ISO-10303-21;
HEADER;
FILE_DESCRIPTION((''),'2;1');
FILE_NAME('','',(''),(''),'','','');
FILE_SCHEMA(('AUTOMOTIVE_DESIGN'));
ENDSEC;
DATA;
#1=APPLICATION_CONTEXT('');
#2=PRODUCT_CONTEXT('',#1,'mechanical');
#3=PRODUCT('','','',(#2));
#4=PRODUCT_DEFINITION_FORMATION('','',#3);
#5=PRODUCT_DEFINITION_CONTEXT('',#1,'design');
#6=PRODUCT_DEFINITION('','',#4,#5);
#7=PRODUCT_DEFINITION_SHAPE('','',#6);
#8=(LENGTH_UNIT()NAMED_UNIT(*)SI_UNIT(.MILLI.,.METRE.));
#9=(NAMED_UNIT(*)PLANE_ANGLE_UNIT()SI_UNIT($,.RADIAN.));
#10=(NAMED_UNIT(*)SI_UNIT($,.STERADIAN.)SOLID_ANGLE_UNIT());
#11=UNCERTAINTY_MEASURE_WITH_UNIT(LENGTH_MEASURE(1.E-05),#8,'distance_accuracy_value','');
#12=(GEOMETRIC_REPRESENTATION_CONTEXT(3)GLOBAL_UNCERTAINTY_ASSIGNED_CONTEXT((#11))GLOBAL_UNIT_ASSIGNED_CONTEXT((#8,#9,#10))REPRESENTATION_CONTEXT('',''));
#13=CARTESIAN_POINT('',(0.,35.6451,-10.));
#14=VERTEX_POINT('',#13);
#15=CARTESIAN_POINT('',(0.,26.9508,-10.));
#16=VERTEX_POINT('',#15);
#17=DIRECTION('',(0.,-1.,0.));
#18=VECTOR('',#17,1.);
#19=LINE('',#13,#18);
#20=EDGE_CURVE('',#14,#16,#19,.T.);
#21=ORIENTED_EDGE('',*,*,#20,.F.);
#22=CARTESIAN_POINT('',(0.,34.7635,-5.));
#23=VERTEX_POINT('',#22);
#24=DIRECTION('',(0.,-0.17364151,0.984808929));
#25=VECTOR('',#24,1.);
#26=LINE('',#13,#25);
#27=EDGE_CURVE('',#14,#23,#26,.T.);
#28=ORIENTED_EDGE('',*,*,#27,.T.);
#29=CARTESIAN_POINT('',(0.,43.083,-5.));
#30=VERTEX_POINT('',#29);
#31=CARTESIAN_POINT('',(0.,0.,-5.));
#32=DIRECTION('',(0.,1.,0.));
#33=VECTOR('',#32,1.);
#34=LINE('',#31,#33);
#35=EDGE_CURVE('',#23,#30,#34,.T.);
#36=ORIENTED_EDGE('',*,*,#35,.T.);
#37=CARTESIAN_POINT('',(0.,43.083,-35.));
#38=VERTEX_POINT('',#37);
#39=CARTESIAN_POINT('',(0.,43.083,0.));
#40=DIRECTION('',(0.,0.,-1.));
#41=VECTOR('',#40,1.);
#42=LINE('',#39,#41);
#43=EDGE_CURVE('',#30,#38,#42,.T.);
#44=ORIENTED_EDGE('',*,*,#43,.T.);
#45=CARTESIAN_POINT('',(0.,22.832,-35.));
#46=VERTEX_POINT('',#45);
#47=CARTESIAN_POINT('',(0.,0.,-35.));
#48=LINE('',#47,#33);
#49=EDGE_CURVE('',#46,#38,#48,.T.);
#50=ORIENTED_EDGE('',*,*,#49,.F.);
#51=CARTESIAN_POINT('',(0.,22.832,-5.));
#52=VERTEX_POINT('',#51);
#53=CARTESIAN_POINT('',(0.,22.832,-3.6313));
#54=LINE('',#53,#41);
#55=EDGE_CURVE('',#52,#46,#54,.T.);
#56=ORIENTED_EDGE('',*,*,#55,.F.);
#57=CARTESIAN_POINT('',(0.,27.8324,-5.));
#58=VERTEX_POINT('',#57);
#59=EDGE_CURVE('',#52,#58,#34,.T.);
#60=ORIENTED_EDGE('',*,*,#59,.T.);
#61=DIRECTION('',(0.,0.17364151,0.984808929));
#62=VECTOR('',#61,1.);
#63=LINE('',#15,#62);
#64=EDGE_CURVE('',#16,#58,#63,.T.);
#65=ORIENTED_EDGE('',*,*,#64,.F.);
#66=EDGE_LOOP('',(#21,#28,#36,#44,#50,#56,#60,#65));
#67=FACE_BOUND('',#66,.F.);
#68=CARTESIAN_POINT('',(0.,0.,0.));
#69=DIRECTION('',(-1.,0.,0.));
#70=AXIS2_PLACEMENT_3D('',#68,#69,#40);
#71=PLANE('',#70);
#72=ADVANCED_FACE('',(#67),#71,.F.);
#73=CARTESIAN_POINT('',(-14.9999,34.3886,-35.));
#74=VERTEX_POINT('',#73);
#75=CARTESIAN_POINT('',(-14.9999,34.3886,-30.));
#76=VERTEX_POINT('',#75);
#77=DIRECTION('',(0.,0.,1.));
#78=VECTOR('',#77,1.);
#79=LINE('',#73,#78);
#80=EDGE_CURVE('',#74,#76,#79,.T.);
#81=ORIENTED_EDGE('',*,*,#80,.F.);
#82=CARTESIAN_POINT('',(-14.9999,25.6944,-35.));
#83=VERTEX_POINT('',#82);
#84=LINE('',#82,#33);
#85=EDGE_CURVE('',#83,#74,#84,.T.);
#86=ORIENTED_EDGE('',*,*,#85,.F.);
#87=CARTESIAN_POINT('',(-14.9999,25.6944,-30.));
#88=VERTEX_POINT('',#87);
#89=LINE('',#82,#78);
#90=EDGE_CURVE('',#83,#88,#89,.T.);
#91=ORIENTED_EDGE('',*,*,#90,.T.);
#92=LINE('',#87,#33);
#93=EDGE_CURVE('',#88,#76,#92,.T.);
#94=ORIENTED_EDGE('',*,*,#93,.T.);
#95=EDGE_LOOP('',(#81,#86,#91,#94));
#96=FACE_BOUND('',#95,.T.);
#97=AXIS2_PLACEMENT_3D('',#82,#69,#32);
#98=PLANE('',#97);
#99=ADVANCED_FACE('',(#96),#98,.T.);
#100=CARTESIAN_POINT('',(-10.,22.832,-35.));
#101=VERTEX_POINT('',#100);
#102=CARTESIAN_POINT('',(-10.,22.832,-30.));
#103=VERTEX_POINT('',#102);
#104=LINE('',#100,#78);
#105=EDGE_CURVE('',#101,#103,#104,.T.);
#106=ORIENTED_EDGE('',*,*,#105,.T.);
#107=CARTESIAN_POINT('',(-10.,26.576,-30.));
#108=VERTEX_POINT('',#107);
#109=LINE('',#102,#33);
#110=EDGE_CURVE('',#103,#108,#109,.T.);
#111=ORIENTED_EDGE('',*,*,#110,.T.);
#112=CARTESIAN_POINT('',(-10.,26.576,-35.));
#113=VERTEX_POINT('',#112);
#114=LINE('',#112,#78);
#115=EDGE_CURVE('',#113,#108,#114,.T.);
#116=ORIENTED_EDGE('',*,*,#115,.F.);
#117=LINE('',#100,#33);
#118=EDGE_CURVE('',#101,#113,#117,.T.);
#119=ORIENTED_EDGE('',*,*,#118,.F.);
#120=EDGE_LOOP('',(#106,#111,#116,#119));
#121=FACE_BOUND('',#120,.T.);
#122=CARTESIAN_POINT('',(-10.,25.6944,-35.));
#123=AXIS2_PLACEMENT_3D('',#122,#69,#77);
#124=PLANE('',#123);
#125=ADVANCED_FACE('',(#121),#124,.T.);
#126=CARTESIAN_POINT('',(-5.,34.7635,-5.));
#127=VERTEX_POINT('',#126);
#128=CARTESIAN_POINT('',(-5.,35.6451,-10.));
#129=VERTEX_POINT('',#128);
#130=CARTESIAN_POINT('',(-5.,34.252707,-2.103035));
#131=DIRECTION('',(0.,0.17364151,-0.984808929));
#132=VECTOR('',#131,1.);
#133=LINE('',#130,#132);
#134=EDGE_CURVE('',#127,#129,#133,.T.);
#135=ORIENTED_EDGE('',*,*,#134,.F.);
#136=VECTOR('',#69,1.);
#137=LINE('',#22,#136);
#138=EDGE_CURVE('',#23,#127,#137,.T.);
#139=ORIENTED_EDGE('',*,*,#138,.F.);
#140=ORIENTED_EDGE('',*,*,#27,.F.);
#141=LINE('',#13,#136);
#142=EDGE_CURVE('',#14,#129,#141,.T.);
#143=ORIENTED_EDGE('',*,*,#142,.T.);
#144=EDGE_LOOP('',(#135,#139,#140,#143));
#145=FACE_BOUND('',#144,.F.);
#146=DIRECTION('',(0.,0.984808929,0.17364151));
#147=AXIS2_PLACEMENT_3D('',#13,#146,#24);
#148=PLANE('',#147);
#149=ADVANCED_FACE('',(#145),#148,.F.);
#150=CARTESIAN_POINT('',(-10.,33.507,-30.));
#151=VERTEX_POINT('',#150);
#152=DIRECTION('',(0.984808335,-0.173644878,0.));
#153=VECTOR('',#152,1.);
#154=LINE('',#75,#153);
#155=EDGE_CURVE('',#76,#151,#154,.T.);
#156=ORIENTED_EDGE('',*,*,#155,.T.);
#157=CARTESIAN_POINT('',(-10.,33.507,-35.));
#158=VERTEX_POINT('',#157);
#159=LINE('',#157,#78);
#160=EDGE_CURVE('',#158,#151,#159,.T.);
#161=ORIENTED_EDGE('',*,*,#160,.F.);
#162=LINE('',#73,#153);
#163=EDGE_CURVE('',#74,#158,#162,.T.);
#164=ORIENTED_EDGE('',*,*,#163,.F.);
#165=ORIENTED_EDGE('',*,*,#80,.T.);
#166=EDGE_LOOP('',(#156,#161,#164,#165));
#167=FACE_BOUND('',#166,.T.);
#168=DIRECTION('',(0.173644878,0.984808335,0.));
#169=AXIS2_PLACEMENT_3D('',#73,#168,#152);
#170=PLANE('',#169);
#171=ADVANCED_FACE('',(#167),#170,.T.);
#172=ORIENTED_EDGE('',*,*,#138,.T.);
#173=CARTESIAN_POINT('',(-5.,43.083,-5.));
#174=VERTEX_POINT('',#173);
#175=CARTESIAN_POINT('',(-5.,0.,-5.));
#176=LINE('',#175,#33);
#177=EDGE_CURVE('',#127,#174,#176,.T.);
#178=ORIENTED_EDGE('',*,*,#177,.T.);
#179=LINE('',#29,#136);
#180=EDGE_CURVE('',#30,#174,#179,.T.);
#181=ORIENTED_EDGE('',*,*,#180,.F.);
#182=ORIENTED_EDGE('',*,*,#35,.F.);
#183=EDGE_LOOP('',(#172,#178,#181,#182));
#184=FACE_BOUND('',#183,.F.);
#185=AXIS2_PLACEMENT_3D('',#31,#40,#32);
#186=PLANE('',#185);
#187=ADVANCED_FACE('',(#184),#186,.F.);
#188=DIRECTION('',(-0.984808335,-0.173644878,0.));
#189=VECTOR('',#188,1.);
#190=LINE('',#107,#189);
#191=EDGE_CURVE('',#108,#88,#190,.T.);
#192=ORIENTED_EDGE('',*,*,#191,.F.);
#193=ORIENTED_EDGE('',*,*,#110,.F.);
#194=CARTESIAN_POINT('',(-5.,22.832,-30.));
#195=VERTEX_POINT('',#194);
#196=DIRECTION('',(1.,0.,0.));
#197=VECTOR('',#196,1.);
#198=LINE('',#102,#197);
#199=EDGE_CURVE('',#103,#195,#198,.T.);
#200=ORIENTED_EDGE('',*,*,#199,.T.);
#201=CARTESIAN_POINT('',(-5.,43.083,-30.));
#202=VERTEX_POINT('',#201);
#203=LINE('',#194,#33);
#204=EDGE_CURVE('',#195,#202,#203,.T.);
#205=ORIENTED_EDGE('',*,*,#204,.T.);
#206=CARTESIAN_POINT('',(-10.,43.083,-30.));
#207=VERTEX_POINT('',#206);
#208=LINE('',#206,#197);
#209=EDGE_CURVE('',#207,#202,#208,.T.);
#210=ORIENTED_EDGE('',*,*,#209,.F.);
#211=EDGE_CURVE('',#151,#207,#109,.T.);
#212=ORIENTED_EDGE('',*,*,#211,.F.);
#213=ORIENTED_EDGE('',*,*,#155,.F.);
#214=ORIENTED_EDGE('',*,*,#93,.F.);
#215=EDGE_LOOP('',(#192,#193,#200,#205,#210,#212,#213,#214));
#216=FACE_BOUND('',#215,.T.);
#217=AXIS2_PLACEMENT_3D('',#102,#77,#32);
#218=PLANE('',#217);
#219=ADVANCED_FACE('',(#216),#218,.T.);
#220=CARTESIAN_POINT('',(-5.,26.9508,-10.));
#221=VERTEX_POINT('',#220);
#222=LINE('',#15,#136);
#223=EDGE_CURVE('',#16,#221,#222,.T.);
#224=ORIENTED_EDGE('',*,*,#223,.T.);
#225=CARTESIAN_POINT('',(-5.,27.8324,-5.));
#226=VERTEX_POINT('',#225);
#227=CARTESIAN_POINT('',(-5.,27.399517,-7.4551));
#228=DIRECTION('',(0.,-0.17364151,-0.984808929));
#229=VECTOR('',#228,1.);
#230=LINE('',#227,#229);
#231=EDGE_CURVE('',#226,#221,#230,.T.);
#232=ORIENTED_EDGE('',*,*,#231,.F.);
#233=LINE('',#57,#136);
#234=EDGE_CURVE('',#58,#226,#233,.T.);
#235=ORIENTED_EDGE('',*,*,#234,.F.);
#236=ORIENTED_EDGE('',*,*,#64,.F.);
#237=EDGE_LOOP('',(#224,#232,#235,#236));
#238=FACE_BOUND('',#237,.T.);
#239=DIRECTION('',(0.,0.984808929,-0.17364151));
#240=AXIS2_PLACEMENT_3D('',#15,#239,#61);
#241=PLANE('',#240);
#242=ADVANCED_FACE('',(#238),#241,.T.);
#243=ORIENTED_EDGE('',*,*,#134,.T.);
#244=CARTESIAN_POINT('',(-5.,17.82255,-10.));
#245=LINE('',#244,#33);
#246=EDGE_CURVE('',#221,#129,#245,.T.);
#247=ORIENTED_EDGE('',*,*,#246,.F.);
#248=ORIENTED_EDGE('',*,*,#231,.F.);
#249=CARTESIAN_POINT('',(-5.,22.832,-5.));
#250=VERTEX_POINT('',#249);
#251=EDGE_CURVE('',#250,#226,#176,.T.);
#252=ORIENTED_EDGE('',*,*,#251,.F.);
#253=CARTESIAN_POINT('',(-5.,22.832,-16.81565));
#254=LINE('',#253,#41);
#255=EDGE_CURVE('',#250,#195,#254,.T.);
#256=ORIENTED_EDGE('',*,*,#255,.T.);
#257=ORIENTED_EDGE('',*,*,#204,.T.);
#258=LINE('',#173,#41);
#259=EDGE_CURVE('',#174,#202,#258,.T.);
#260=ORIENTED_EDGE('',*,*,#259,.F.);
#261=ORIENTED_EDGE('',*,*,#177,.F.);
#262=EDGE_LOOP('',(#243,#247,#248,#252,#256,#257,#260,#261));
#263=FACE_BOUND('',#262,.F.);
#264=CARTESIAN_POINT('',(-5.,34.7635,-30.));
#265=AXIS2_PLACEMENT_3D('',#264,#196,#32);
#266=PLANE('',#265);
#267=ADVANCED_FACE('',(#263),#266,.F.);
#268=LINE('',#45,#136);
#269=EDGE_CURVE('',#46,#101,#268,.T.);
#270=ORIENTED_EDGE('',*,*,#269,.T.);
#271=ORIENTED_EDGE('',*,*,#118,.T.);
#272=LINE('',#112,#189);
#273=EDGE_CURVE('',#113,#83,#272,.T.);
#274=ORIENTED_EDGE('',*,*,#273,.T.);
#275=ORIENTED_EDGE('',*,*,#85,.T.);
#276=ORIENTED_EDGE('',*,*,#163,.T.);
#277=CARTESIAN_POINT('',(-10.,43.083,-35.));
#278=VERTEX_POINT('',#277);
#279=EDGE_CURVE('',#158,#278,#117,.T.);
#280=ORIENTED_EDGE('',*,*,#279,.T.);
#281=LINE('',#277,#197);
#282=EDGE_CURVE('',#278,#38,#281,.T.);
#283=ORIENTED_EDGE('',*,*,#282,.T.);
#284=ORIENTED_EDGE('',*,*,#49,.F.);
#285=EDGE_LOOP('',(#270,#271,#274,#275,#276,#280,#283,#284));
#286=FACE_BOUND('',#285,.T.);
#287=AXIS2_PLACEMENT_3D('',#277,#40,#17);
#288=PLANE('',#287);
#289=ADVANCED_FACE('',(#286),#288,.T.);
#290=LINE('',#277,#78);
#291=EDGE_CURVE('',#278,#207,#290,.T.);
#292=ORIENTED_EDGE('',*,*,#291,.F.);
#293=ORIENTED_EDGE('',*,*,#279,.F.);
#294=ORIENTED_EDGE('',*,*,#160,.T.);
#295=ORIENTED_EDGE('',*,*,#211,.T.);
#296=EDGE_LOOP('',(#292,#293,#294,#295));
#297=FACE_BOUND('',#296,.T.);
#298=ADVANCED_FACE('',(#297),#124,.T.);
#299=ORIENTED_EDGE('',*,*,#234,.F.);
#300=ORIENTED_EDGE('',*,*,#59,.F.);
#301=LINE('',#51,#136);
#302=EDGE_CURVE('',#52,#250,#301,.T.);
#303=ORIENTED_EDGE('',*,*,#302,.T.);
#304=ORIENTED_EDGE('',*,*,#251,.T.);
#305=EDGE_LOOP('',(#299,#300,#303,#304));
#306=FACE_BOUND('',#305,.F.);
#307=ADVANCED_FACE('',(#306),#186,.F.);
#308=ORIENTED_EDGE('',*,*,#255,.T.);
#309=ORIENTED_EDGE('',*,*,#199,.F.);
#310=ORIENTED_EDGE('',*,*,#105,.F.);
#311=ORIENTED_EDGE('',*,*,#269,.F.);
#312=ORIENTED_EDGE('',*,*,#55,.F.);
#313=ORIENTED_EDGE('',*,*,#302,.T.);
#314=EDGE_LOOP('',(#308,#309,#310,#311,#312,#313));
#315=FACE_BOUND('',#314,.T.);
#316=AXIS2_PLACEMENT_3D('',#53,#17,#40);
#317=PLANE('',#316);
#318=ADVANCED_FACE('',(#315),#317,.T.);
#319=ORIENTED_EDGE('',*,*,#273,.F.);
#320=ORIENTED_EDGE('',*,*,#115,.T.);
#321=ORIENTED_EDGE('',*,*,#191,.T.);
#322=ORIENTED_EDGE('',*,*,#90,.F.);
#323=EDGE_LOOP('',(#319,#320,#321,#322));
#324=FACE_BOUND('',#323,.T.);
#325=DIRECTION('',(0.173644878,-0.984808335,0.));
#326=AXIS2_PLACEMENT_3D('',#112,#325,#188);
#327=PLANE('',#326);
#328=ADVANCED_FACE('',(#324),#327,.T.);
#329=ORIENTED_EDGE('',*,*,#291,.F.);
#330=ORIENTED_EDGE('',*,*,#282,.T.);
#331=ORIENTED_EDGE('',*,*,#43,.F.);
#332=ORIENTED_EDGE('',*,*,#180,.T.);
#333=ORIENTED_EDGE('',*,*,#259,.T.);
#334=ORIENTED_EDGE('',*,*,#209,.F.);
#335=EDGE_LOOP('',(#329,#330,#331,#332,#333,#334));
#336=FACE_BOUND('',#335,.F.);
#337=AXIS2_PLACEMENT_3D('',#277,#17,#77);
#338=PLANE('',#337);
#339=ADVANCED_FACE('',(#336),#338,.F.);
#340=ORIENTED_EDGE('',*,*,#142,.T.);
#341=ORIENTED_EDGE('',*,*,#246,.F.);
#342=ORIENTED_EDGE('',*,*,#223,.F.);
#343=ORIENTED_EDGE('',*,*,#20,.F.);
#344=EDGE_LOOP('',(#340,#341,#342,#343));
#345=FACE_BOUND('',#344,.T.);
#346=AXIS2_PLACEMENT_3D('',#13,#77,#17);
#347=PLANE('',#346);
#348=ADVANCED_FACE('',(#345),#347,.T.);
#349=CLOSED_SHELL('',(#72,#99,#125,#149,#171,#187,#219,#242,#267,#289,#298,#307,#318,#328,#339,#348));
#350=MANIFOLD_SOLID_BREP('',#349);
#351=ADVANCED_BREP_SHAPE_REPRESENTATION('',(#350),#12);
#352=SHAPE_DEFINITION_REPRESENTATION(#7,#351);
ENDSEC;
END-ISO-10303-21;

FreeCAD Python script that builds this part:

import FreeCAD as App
import Part
import Sketcher
Q = App.Units.Quantity


def faces_at(feature, points):
    """Names of the faces that lie closest to the given points."""
    faces = feature.Shape.Faces
    near = lambda p: min(range(len(faces)), key=lambda i: faces[i].distToShape(Part.Vertex(*p))[0])
    return sorted({f"Face{near(p) + 1}" for p in points})


def add_polygon(sketch, points):
    """Adds a closed chain of lines whose ends are joined by coincident constraints."""
    first, n = sketch.GeometryCount, len(points)
    for a, b in zip(points, points[1:] + points[:1]):
        sketch.addGeometry(Part.LineSegment(App.Vector(*a, 0), App.Vector(*b, 0)), False)
    for i in range(n):
        sketch.addConstraint(Sketcher.Constraint("Coincident", first + i, 2, first + (i + 1) % n, 1))

doc = App.newDocument("Part")
body = doc.addObject("PartDesign::Body", "Body")

# Sketch on XZ plane
sketch1 = body.newObject("Sketcher::SketchObject", "Sketch")
sketch1.AttachmentSupport = (doc.getObject("XZ_Plane"), [""])
sketch1.MapMode = "FlatFace"
add_polygon(sketch1, [(-48, 0), (0, 0), (0, -35), (-37, -35), (-37, -55), (-48, -55)])  # lines 0-5
sketch1.addConstraint(Sketcher.Constraint("Horizontal", 0))
sketch1.addConstraint(Sketcher.Constraint("Vertical", 1))
sketch1.addConstraint(Sketcher.Constraint("Horizontal", 2))
sketch1.addConstraint(Sketcher.Constraint("Vertical", 3))
sketch1.addConstraint(Sketcher.Constraint("Horizontal", 4))
sketch1.addConstraint(Sketcher.Constraint("Vertical", 5))
sketch1.addConstraint(Sketcher.Constraint("Coincident", 0, 2, -1, 1))
sketch1.addConstraint(Sketcher.Constraint("DistanceX", 2, 2, 2, 1, 37.0))
sketch1.addConstraint(Sketcher.Constraint("DistanceX", 4, 2, 4, 1, 11.0))
sketch1.addConstraint(Sketcher.Constraint("DistanceY", 1, 2, 1, 1, 35.0))
sketch1.addConstraint(Sketcher.Constraint("DistanceY", 3, 2, 3, 1, 20.0))
pad1 = body.newObject("PartDesign::Pad", "Pad")
pad1.Profile = sketch1
pad1.Length = 50
pad1.Reversed = True
doc.recompute()

thickness = body.newObject("PartDesign::Thickness", "Thickness")
thickness.Base = (pad1, faces_at(pad1, [(-48, 16.667, -36.667), (-19.667, 0, -23.333), (-19.667, 50, -23.333)]))
thickness.Value = 5
thickness.Reversed = True
thickness.Join = "Intersection"

# Sketch on YZ plane
sketch2 = body.newObject("Sketcher::SketchObject", "Sketch001")
sketch2.AttachmentSupport = (doc.getObject("YZ_Plane"), [""])
sketch2.MapMode = "FlatFace"
add_polygon(sketch2, [(17, -5), (0, -5), (0, -19), (17, -19)])  # lines 0-3
sketch2.addConstraint(Sketcher.Constraint("Horizontal", 0))
sketch2.addConstraint(Sketcher.Constraint("Vertical", 1))
sketch2.addConstraint(Sketcher.Constraint("Horizontal", 2))
sketch2.addConstraint(Sketcher.Constraint("Vertical", 3))
sketch2.addConstraint(Sketcher.Constraint("PointOnObject", 0, 2, -2))
sketch2.addConstraint(Sketcher.Constraint("DistanceX", 0, 2, 0, 1, 17.0))
sketch2.addConstraint(Sketcher.Constraint("DistanceY", 1, 2, 1, 1, 14.0))
sketch2.addConstraint(Sketcher.Constraint("DistanceY", 0, 2, -1, 1, 5.0))
pocket1 = body.newObject("PartDesign::Pocket", "Pocket")
pocket1.Profile = sketch2
pocket1.Length = 10

# Sketch on YZ plane
sketch3 = body.newObject("Sketcher::SketchObject", "Sketch002")
sketch3.AttachmentSupport = (doc.getObject("YZ_Plane"), [""])
sketch3.MapMode = "FlatFace"
sketch3.AttachmentOffset = App.Placement(App.Vector(0, 0, -48), App.Rotation())
add_polygon(sketch3, [(50, -55), (0, -55), (0, -50), (50, -50)])  # lines 0-3
sketch3.addConstraint(Sketcher.Constraint("Horizontal", 0))
sketch3.addConstraint(Sketcher.Constraint("Vertical", 1))
sketch3.addConstraint(Sketcher.Constraint("Horizontal", 2))
sketch3.addConstraint(Sketcher.Constraint("Vertical", 3))
sketch3.addConstraint(Sketcher.Constraint("PointOnObject", 0, 2, -2))
sketch3.addConstraint(Sketcher.Constraint("DistanceX", 0, 2, 0, 1, 50.0))
sketch3.addConstraint(Sketcher.Constraint("DistanceY", 1, 1, 1, 2, 5.0))
sketch3.addConstraint(Sketcher.Constraint("DistanceY", 0, 2, -1, 1, 55.0))
pad2 = body.newObject("PartDesign::Pad", "Pad001")
pad2.Profile = sketch3
pad2.Length = 15
pad2.Reversed = True

# Sketch on YZ plane
sketch4 = body.newObject("Sketcher::SketchObject", "Sketch003")
sketch4.AttachmentSupport = (doc.getObject("YZ_Plane"), [""])
sketch4.MapMode = "FlatFace"
sketch4.AttachmentOffset = App.Placement(App.Vector(0, 0, -48), App.Rotation())
add_polygon(sketch4, [(50, -5), (0, -5), (0, 0), (50, 0)])  # lines 0-3
sketch4.addConstraint(Sketcher.Constraint("Horizontal", 0))
sketch4.addConstraint(Sketcher.Constraint("Vertical", 1))
sketch4.addConstraint(Sketcher.Constraint("Horizontal", 2))
sketch4.addConstraint(Sketcher.Constraint("Vertical", 3))
sketch4.addConstraint(Sketcher.Constraint("Coincident", 1, 2, -1, 1))
sketch4.addConstraint(Sketcher.Constraint("DistanceX", 0, 2, 0, 1, 50.0))
sketch4.addConstraint(Sketcher.Constraint("DistanceY", 1, 1, 1, 2, 5.0))
pad3 = body.newObject("PartDesign::Pad", "Pad002")
pad3.Profile = sketch4
pad3.Length = 15
pad3.Reversed = True

# Sketch on XY plane
sketch5 = body.newObject("Sketcher::SketchObject", "Sketch004")
sketch5.AttachmentSupport = (doc.getObject("XY_Plane"), [""])
sketch5.MapMode = "FlatFace"
sketch5.AttachmentOffset = App.Placement(App.Vector(0, 0, -5), App.Rotation())
sketch5.addGeometry(Part.Circle(App.Vector(-11.5, 8.5, 0), App.Vector(0, 0, 1), 2.0828), False)
sketch5.addConstraint(Sketcher.Constraint("Diameter", 0, 4.1656))
sketch5.addConstraint(Sketcher.Constraint("DistanceX", 0, 3, -1, 1, 11.5))
sketch5.addConstraint(Sketcher.Constraint("DistanceY", -1, 1, 0, 3, 8.5))
pocket2 = body.newObject("PartDesign::Pocket", "Pocket001")
pocket2.Profile = sketch5
pocket2.Length = 15
pocket2.Reversed = True

# Sketch on XY plane
sketch6 = body.newObject("Sketcher::SketchObject", "Sketch005")
sketch6.AttachmentSupport = (doc.getObject("XY_Plane"), [""])
sketch6.MapMode = "FlatFace"
sketch6.AttachmentOffset = App.Placement(App.Vector(0, 0, -5), App.Rotation())
sketch6.addGeometry(Part.Circle(App.Vector(-28.505, 35.46, 0), App.Vector(0, 0, 1), 2.0828), False)
sketch6.addConstraint(Sketcher.Constraint("Diameter", 0, 4.1656))
sketch6.addConstraint(Sketcher.Constraint("DistanceY", -1, 1, 0, 3, 35.46))
sketch6.addConstraint(Sketcher.Constraint("DistanceX", 0, 3, -1, 1, 28.505))
pocket3 = body.newObject("PartDesign::Pocket", "Pocket002")
pocket3.Profile = sketch6
pocket3.Length = 15
pocket3.Reversed = True

# Sketch on XY plane
sketch7 = body.newObject("Sketcher::SketchObject", "Sketch006")
sketch7.AttachmentSupport = (doc.getObject("XY_Plane"), [""])
sketch7.MapMode = "FlatFace"
sketch7.AttachmentOffset = App.Placement(App.Vector(0, 0, -5), App.Rotation())
sketch7.addGeometry(Part.Circle(App.Vector(-58.5, 36, 0), App.Vector(0, 0, 1), 2.0828), False)
sketch7.addConstraint(Sketcher.Constraint("Diameter", 0, 4.1656))
sketch7.addConstraint(Sketcher.Constraint("DistanceY", -1, 1, 0, 3, 36.0))
sketch7.addConstraint(Sketcher.Constraint("DistanceX", 0, 3, -1, 1, 58.5))
pocket4 = body.newObject("PartDesign::Pocket", "Pocket003")
pocket4.Profile = sketch7
pocket4.Length = 15
pocket4.Reversed = True

# Sketch on XY plane
sketch8 = body.newObject("Sketcher::SketchObject", "Sketch007")
sketch8.AttachmentSupport = (doc.getObject("XY_Plane"), [""])
sketch8.MapMode = "FlatFace"
sketch8.AttachmentOffset = App.Placement(App.Vector(0, 0, -35), App.Rotation())
sketch8.addGeometry(Part.Circle(App.Vector(-11.5, 8.5, 0), App.Vector(0, 0, 1), 2.0828), False)
sketch8.addConstraint(Sketcher.Constraint("Diameter", 0, 4.1656))
sketch8.addConstraint(Sketcher.Constraint("DistanceX", 0, 3, -1, 1, 11.5))
sketch8.addConstraint(Sketcher.Constraint("DistanceY", -1, 1, 0, 3, 8.5))
pocket5 = body.newObject("PartDesign::Pocket", "Pocket004")
pocket5.Profile = sketch8
pocket5.Length = 15
pocket5.Reversed = True

# Sketch on XY plane
sketch9 = body.newObject("Sketcher::SketchObject", "Sketch008")
sketch9.AttachmentSupport = (doc.getObject("XY_Plane"), [""])
sketch9.MapMode = "FlatFace"
sketch9.AttachmentOffset = App.Placement(App.Vector(0, 0, -55), App.Rotation())
sketch9.addGeometry(Part.Circle(App.Vector(-28.505, 35.46, 0), App.Vector(0, 0, 1), 2.0828), False)
sketch9.addConstraint(Sketcher.Constraint("Diameter", 0, 4.1656))
sketch9.addConstraint(Sketcher.Constraint("DistanceY", -1, 1, 0, 3, 35.46))
sketch9.addConstraint(Sketcher.Constraint("DistanceX", 0, 3, -1, 1, 28.505))
pocket6 = body.newObject("PartDesign::Pocket", "Pocket005")
pocket6.Profile = sketch9
pocket6.Length = 15
pocket6.Reversed = True

# Sketch on XY plane
sketch10 = body.newObject("Sketcher::SketchObject", "Sketch009")
sketch10.AttachmentSupport = (doc.getObject("XY_Plane"), [""])
sketch10.MapMode = "FlatFace"
sketch10.AttachmentOffset = App.Placement(App.Vector(0, 0, -55), App.Rotation())
sketch10.addGeometry(Part.Circle(App.Vector(-58.5, 36, 0), App.Vector(0, 0, 1), 2.0828), False)
sketch10.addConstraint(Sketcher.Constraint("DistanceY", -1, 1, 0, 3, 36.0))
sketch10.addConstraint(Sketcher.Constraint("Diameter", 0, 4.1656))
sketch10.addConstraint(Sketcher.Constraint("DistanceX", 0, 3, -1, 1, 58.5))
pocket7 = body.newObject("PartDesign::Pocket", "Pocket006")
pocket7.Profile = sketch10
pocket7.Length = 15
pocket7.Reversed = True

# Sketch on YZ plane
sketch11 = body.newObject("Sketcher::SketchObject", "Sketch010")
sketch11.AttachmentSupport = (doc.getObject("YZ_Plane"), [""])
sketch11.MapMode = "FlatFace"
sketch11.AttachmentOffset = App.Placement(App.Vector(0, 0, -42), App.Rotation())
add_polygon(sketch11, [(0, -35), (0, -30), (50, -30), (50, -35)])  # lines 0-3
sketch11.addConstraint(Sketcher.Constraint("Vertical", 0))
sketch11.addConstraint(Sketcher.Constraint("Horizontal", 1))
sketch11.addConstraint(Sketcher.Constraint("Vertical", 2))
sketch11.addConstraint(Sketcher.Constraint("Horizontal", 3))
sketch11.addConstraint(Sketcher.Constraint("PointOnObject", 0, 2, -2))
sketch11.addConstraint(Sketcher.Constraint("DistanceX", 1, 1, 1, 2, 50.0))
sketch11.addConstraint(Sketcher.Constraint("DistanceY", 0, 1, 0, 2, 5.0))
sketch11.addConstraint(Sketcher.Constraint("DistanceY", 0, 2, -1, 1, 30.0))
pad4 = body.newObject("PartDesign::Pad", "Pad003")
pad4.Profile = sketch11
pad4.Length = 21
pad4.Reversed = True

# Sketch on XY plane
sketch12 = body.newObject("Sketcher::SketchObject", "Sketch011")
sketch12.AttachmentSupport = (doc.getObject("XY_Plane"), [""])
sketch12.MapMode = "FlatFace"
sketch12.AttachmentOffset = App.Placement(App.Vector(0, 0, -30), App.Rotation())
sketch12.addGeometry(Part.Circle(App.Vector(-28.505, 35.46, 0), App.Vector(0, 0, 1), 2.0828), False)
sketch12.addConstraint(Sketcher.Constraint("Diameter", 0, 4.1656))
sketch12.addConstraint(Sketcher.Constraint("DistanceY", -1, 1, 0, 3, 35.46))
sketch12.addConstraint(Sketcher.Constraint("DistanceX", 0, 3, -1, 1, 28.505))
pocket8 = body.newObject("PartDesign::Pocket", "Pocket007")
pocket8.Profile = sketch12
pocket8.Length = 10

# Sketch on XY plane
sketch13 = body.newObject("Sketcher::SketchObject", "Sketch012")
sketch13.AttachmentSupport = (doc.getObject("XY_Plane"), [""])
sketch13.MapMode = "FlatFace"
sketch13.AttachmentOffset = App.Placement(App.Vector(0, 0, -35), App.Rotation())
sketch13.addGeometry(Part.Circle(App.Vector(-58.5, 36, 0), App.Vector(0, 0, 1), 2.0828), False)
sketch13.addConstraint(Sketcher.Constraint("DistanceY", -1, 1, 0, 3, 36.0))
sketch13.addConstraint(Sketcher.Constraint("Diameter", 0, 4.1656))
sketch13.addConstraint(Sketcher.Constraint("DistanceX", 0, 3, -1, 1, 58.5))
pocket9 = body.newObject("PartDesign::Pocket", "Pocket008")
pocket9.Profile = sketch13
pocket9.Length = 10
pocket9.Reversed = True

# Sketch on YZ plane
sketch14 = body.newObject("Sketcher::SketchObject", "Sketch013")
sketch14.AttachmentSupport = (doc.getObject("YZ_Plane"), [""])
sketch14.MapMode = "FlatFace"
sketch14.AttachmentOffset = App.Placement(App.Vector(0, 0, -63), App.Rotation())
add_polygon(sketch14, [(0, -5), (0, 0), (50, 0), (50, -5)])  # lines 0-3
sketch14.addConstraint(Sketcher.Constraint("Vertical", 0))
sketch14.addConstraint(Sketcher.Constraint("Horizontal", 1))
sketch14.addConstraint(Sketcher.Constraint("Vertical", 2))
sketch14.addConstraint(Sketcher.Constraint("Horizontal", 3))
sketch14.addConstraint(Sketcher.Constraint("Coincident", 0, 2, -1, 1))
sketch14.addConstraint(Sketcher.Constraint("DistanceX", 1, 1, 1, 2, 50.0))
sketch14.addConstraint(Sketcher.Constraint("DistanceY", 0, 1, 0, 2, 5.0))
pad5 = body.newObject("PartDesign::Pad", "Pad004")
pad5.Profile = sketch14
pad5.Length = 2.583
pad5.Reversed = True

# Sketch on YZ plane
sketch15 = body.newObject("Sketcher::SketchObject", "Sketch014")
sketch15.AttachmentSupport = (doc.getObject("YZ_Plane"), [""])
sketch15.MapMode = "FlatFace"
sketch15.AttachmentOffset = App.Placement(App.Vector(0, 0, -63), App.Rotation())
add_polygon(sketch15, [(50, -30), (50, -35), (0, -35), (0, -30)])  # lines 0-3
sketch15.addConstraint(Sketcher.Constraint("Vertical", 0))
sketch15.addConstraint(Sketcher.Constraint("Horizontal", 1))
sketch15.addConstraint(Sketcher.Constraint("Vertical", 2))
sketch15.addConstraint(Sketcher.Constraint("Horizontal", 3))
sketch15.addConstraint(Sketcher.Constraint("PointOnObject", 1, 2, -2))
sketch15.addConstraint(Sketcher.Constraint("DistanceX", 1, 2, 1, 1, 50.0))
sketch15.addConstraint(Sketcher.Constraint("DistanceY", 0, 2, 0, 1, 5.0))
sketch15.addConstraint(Sketcher.Constraint("DistanceY", 0, 2, -1, 1, 35.0))
pad6 = body.newObject("PartDesign::Pad", "Pad005")
pad6.Profile = sketch15
pad6.Length = 2.583
pad6.Reversed = True

# Sketch on YZ plane
sketch16 = body.newObject("Sketcher::SketchObject", "Sketch015")
sketch16.AttachmentSupport = (doc.getObject("YZ_Plane"), [""])
sketch16.MapMode = "FlatFace"
sketch16.AttachmentOffset = App.Placement(App.Vector(0, 0, -63), App.Rotation())
add_polygon(sketch16, [(50, -55), (0, -55), (0, -50), (50, -50)])  # lines 0-3
sketch16.addConstraint(Sketcher.Constraint("Horizontal", 0))
sketch16.addConstraint(Sketcher.Constraint("Vertical", 1))
sketch16.addConstraint(Sketcher.Constraint("Horizontal", 2))
sketch16.addConstraint(Sketcher.Constraint("Vertical", 3))
sketch16.addConstraint(Sketcher.Constraint("PointOnObject", 0, 2, -2))
sketch16.addConstraint(Sketcher.Constraint("DistanceX", 0, 2, 0, 1, 50.0))
sketch16.addConstraint(Sketcher.Constraint("DistanceY", 1, 1, 1, 2, 5.0))
sketch16.addConstraint(Sketcher.Constraint("DistanceY", 0, 2, -1, 1, 55.0))
pad7 = body.newObject("PartDesign::Pad", "Pad006")
pad7.Profile = sketch16
pad7.Length = 2.583
pad7.Reversed = True

# Sketch on XY plane
sketch17 = body.newObject("Sketcher::SketchObject", "Sketch016")
sketch17.AttachmentSupport = (doc.getObject("XY_Plane"), [""])
sketch17.MapMode = "FlatFace"
add_polygon(sketch17, [(0, 43.083), (0, 50), (-65.583, 50), (-65.583, 43.083)])  # lines 0-3
sketch17.addConstraint(Sketcher.Constraint("Vertical", 0))
sketch17.addConstraint(Sketcher.Constraint("Horizontal", 1))
sketch17.addConstraint(Sketcher.Constraint("Vertical", 2))
sketch17.addConstraint(Sketcher.Constraint("Horizontal", 3))
sketch17.addConstraint(Sketcher.Constraint("PointOnObject", 0, 2, -2))
sketch17.addConstraint(Sketcher.Constraint("DistanceY", 0, 1, 0, 2, 6.917))
sketch17.addConstraint(Sketcher.Constraint("DistanceY", -1, 1, 0, 2, 50.0))
sketch17.addConstraint(Sketcher.Constraint("DistanceX", 1, 2, 1, 1, 65.583))
pocket10 = body.newObject("PartDesign::Pocket", "Pocket009")
pocket10.Profile = sketch17
pocket10.Length = 100

# Sketch on XY plane
sketch18 = body.newObject("Sketcher::SketchObject", "Sketch017")
sketch18.AttachmentSupport = (doc.getObject("XY_Plane"), [""])
sketch18.MapMode = "FlatFace"
sketch18.AttachmentOffset = App.Placement(App.Vector(0, 0, -35), App.Rotation())
add_polygon(sketch18, [(-25.0052, 5), (-26.0052, 0), (-31.0052, 0), (-32.0052, 5)])  # lines 0-3
sketch18.addConstraint(Sketcher.Constraint("Horizontal", 1))
sketch18.addConstraint(Sketcher.Constraint("Horizontal", 3))
sketch18.addConstraint(Sketcher.Constraint("PointOnObject", 0, 2, -1))
sketch18.addConstraint(Sketcher.Constraint("Equal", 0, 2))
sketch18.addConstraint(Sketcher.Constraint("DistanceX", 1, 2, 1, 1, 5.0))
sketch18.addConstraint(Sketcher.Constraint("DistanceY", -1, 1, 2, 2, 5.0))
sketch18.addConstraint(Sketcher.Constraint("DistanceX", 2, 2, 1, 2, 1.0))
sketch18.addConstraint(Sketcher.Constraint("DistanceX", 0, 2, -1, 1, 26.0052))
pocket11 = body.newObject("PartDesign::Pocket", "Pocket010")
pocket11.Profile = sketch18
pocket11.Length = 100
pocket11.Reversed = True

# Sketch on YZ plane
sketch19 = body.newObject("Sketcher::SketchObject", "Sketch018")
sketch19.AttachmentSupport = (doc.getObject("YZ_Plane"), [""])
sketch19.MapMode = "FlatFace"
add_polygon(sketch19, [(43.083, 0), (0, 0), (0, -5), (43.083, -5)])  # lines 0-3
sketch19.addConstraint(Sketcher.Constraint("Horizontal", 0))
sketch19.addConstraint(Sketcher.Constraint("Vertical", 1))
sketch19.addConstraint(Sketcher.Constraint("Horizontal", 2))
sketch19.addConstraint(Sketcher.Constraint("Vertical", 3))
sketch19.addConstraint(Sketcher.Constraint("Coincident", 0, 2, -1, 1))
sketch19.addConstraint(Sketcher.Constraint("DistanceY", 1, 2, 1, 1, 5.0))
sketch19.addConstraint(Sketcher.Constraint("DistanceX", 0, 2, 0, 1, 43.083))
pocket12 = body.newObject("PartDesign::Pocket", "Pocket011")
pocket12.Profile = sketch19
pocket12.Length = 100

# Sketch on YZ plane
sketch20 = body.newObject("Sketcher::SketchObject", "Sketch019")
sketch20.AttachmentSupport = (doc.getObject("YZ_Plane"), [""])
sketch20.MapMode = "FlatFace"
add_polygon(sketch20, [(26.9508, -10), (35.6451, -10), (34.7635, -5), (27.8324, -5)])  # lines 0-3
sketch20.addConstraint(Sketcher.Constraint("Horizontal", 0))
sketch20.addConstraint(Sketcher.Constraint("Horizontal", 2))
sketch20.addConstraint(Sketcher.Constraint("Equal", 1, 3))
sketch20.addConstraint(Sketcher.Constraint("DistanceY", 1, 2, -1, 1, 5.0))
sketch20.addConstraint(Sketcher.Constraint("DistanceY", 0, 2, 1, 2, 5.0))
sketch20.addConstraint(Sketcher.Constraint("Angle", 1, Q("99.9996 deg")))
sketch20.addConstraint(Sketcher.Constraint("DistanceX", 0, 1, 0, 2, 8.6943))
sketch20.addConstraint(Sketcher.Constraint("DistanceX", -1, 1, 0, 2, 35.645))
pocket13 = body.newObject("PartDesign::Pocket", "Pocket012")
pocket13.Profile = sketch20
pocket13.Length = 100

# Sketch on YZ plane
sketch21 = body.newObject("Sketcher::SketchObject", "Sketch020")
sketch21.AttachmentSupport = (doc.getObject("YZ_Plane"), [""])
sketch21.MapMode = "FlatFace"
sketch21.AttachmentOffset = App.Placement(App.Vector(0, 0, -37), App.Rotation())
add_polygon(sketch21, [(8.3057, -40), (17, -40), (16.1184, -35), (9.1873, -35)])  # lines 0-3
sketch21.addConstraint(Sketcher.Constraint("Horizontal", 0))
sketch21.addConstraint(Sketcher.Constraint("Horizontal", 2))
sketch21.addConstraint(Sketcher.Constraint("Equal", 1, 3))
sketch21.addConstraint(Sketcher.Constraint("DistanceY", 0, 2, 1, 2, 5.0))
sketch21.addConstraint(Sketcher.Constraint("Angle", 1, Q("99.9996 deg")))
sketch21.addConstraint(Sketcher.Constraint("DistanceX", 0, 1, 0, 2, 8.6943))
sketch21.addConstraint(Sketcher.Constraint("DistanceX", -1, 1, 0, 2, 17.0))
sketch21.addConstraint(Sketcher.Constraint("DistanceY", 0, 2, -1, 1, 40.0))
pad8 = body.newObject("PartDesign::Pad", "Pad007")
pad8.Profile = sketch21
pad8.Length = 5

# Sketch on YZ plane
sketch22 = body.newObject("Sketcher::SketchObject", "Sketch021")
sketch22.AttachmentSupport = (doc.getObject("YZ_Plane"), [""])
sketch22.MapMode = "FlatFace"
sketch22.AttachmentOffset = App.Placement(App.Vector(0, 0, -37), App.Rotation())
add_polygon(sketch22, [(25.6944, -40), (34.3887, -40), (33.507, -35), (26.576, -35)])  # lines 0-3
sketch22.addConstraint(Sketcher.Constraint("Horizontal", 0))
sketch22.addConstraint(Sketcher.Constraint("Horizontal", 2))
sketch22.addConstraint(Sketcher.Constraint("Equal", 1, 3))
sketch22.addConstraint(Sketcher.Constraint("DistanceY", 0, 2, 1, 2, 5.0))
sketch22.addConstraint(Sketcher.Constraint("Angle", 1, Q("100.0007 deg")))
sketch22.addConstraint(Sketcher.Constraint("DistanceX", 0, 1, 0, 2, 8.6943))
sketch22.addConstraint(Sketcher.Constraint("DistanceY", 0, 2, -1, 1, 40.0))
sketch22.addConstraint(Sketcher.Constraint("DistanceX", -1, 1, 1, 2, 33.507))
pad9 = body.newObject("PartDesign::Pad", "Pad008")
pad9.Profile = sketch22
pad9.Length = 5

# Sketch on XZ plane
sketch23 = body.newObject("Sketcher::SketchObject", "Sketch022")
sketch23.AttachmentSupport = (doc.getObject("XZ_Plane"), [""])
sketch23.MapMode = "FlatFace"
sketch23.AttachmentOffset = App.Placement(App.Vector(0, 0, -43.083), App.Rotation())
add_polygon(sketch23, [(-37, -55), (-65.583, -55), (-65.583, -35), (-37, -35)])  # lines 0-3
sketch23.addConstraint(Sketcher.Constraint("Horizontal", 0))
sketch23.addConstraint(Sketcher.Constraint("Vertical", 1))
sketch23.addConstraint(Sketcher.Constraint("Horizontal", 2))
sketch23.addConstraint(Sketcher.Constraint("Vertical", 3))
sketch23.addConstraint(Sketcher.Constraint("DistanceY", 1, 1, 1, 2, 20.0))
sketch23.addConstraint(Sketcher.Constraint("DistanceY", 0, 2, -1, 1, 55.0))
sketch23.addConstraint(Sketcher.Constraint("DistanceX", 2, 2, -1, 1, 37.0))
sketch23.addConstraint(Sketcher.Constraint("DistanceX", 0, 2, 0, 1, 28.583))
pocket14 = body.newObject("PartDesign::Pocket", "Pocket013")
pocket14.Profile = sketch23
pocket14.Length = 100
pocket14.Reversed = True

# Sketch on XY plane
sketch24 = body.newObject("Sketcher::SketchObject", "Sketch023")
sketch24.AttachmentSupport = (doc.getObject("XY_Plane"), [""])
sketch24.MapMode = "FlatFace"
sketch24.AttachmentOffset = App.Placement(App.Vector(0, 0, -30), App.Rotation())
add_polygon(sketch24, [(-5, -3.8871), (-5, 43.083), (-69.2913, 43.083), (-69.2913, -3.8871)])  # lines 0-3
sketch24.addConstraint(Sketcher.Constraint("Vertical", 0))
sketch24.addConstraint(Sketcher.Constraint("Horizontal", 1))
sketch24.addConstraint(Sketcher.Constraint("Vertical", 2))
sketch24.addConstraint(Sketcher.Constraint("Horizontal", 3))
sketch24.addConstraint(Sketcher.Constraint("DistanceX", 0, 2, -1, 1, 5.0))
sketch24.addConstraint(Sketcher.Constraint("DistanceY", 0, 1, 0, 2, 46.97))
sketch24.addConstraint(Sketcher.Constraint("DistanceX", 1, 2, 1, 1, 64.2913))
sketch24.addConstraint(Sketcher.Constraint("DistanceY", -1, 1, 0, 2, 43.083))
pocket15 = body.newObject("PartDesign::Pocket", "Pocket014")
pocket15.Profile = sketch24
pocket15.Length = 100

# Sketch on XY plane
sketch25 = body.newObject("Sketcher::SketchObject", "Sketch024")
sketch25.AttachmentSupport = (doc.getObject("XY_Plane"), [""])
sketch25.MapMode = "FlatFace"
sketch25.AttachmentOffset = App.Placement(App.Vector(0, 0, -35), App.Rotation())
add_polygon(sketch25, [(-10, 25.6944), (-10, 34.3887), (-5, 33.507), (-5, 26.576)])  # lines 0-3
sketch25.addConstraint(Sketcher.Constraint("Vertical", 0))
sketch25.addConstraint(Sketcher.Constraint("Vertical", 2))
sketch25.addConstraint(Sketcher.Constraint("Equal", 1, 3))
sketch25.addConstraint(Sketcher.Constraint("Angle", 3, Q("-170.0004 deg")))
sketch25.addConstraint(Sketcher.Constraint("DistanceX", 1, 2, -1, 1, 5.0))
sketch25.addConstraint(Sketcher.Constraint("DistanceX", 0, 2, 1, 2, 5.0))
sketch25.addConstraint(Sketcher.Constraint("DistanceY", 0, 1, 0, 2, 8.6943))
sketch25.addConstraint(Sketcher.Constraint("DistanceY", -1, 1, 1, 2, 33.507))
pad10 = body.newObject("PartDesign::Pad", "Pad009")
pad10.Profile = sketch25
pad10.Length = 5

# Sketch on YZ plane
sketch26 = body.newObject("Sketcher::SketchObject", "Sketch025")
sketch26.AttachmentSupport = (doc.getObject("YZ_Plane"), [""])
sketch26.MapMode = "FlatFace"
add_polygon(sketch26, [(0, -3.6313), (0, -35), (22.832, -35), (22.832, -3.6313)])  # lines 0-3
sketch26.addConstraint(Sketcher.Constraint("Vertical", 0))
sketch26.addConstraint(Sketcher.Constraint("Horizontal", 1))
sketch26.addConstraint(Sketcher.Constraint("Vertical", 2))
sketch26.addConstraint(Sketcher.Constraint("Horizontal", 3))
sketch26.addConstraint(Sketcher.Constraint("PointOnObject", 0, 2, -2))
sketch26.addConstraint(Sketcher.Constraint("DistanceX", 1, 1, 1, 2, 22.832))
sketch26.addConstraint(Sketcher.Constraint("DistanceY", 0, 2, -1, 1, 35.0))
sketch26.addConstraint(Sketcher.Constraint("DistanceY", 0, 2, 0, 1, 31.3687))
pocket16 = body.newObject("PartDesign::Pocket", "Pocket015")
pocket16.Profile = sketch26
pocket16.Length = 10

# Sketch on YZ plane
sketch27 = body.newObject("Sketcher::SketchObject", "Sketch026")
sketch27.AttachmentSupport = (doc.getObject("YZ_Plane"), [""])
sketch27.MapMode = "FlatFace"
sketch27.AttachmentOffset = App.Placement(App.Vector(0, 0, -10), App.Rotation())
add_polygon(sketch27, [(43.083, -35), (22.832, -35), (22.832, -30), (43.083, -30)])  # lines 0-3
sketch27.addConstraint(Sketcher.Constraint("Horizontal", 0))
sketch27.addConstraint(Sketcher.Constraint("Vertical", 1))
sketch27.addConstraint(Sketcher.Constraint("Horizontal", 2))
sketch27.addConstraint(Sketcher.Constraint("Vertical", 3))
sketch27.addConstraint(Sketcher.Constraint("DistanceY", 1, 1, 1, 2, 5.0))
sketch27.addConstraint(Sketcher.Constraint("DistanceY", 0, 2, -1, 1, 35.0))
sketch27.addConstraint(Sketcher.Constraint("DistanceX", 0, 2, 0, 1, 20.251))
sketch27.addConstraint(Sketcher.Constraint("DistanceX", -1, 1, 0, 2, 22.832))
pad11 = body.newObject("PartDesign::Pad", "Pad010")
pad11.Profile = sketch27
pad11.Length = 5

# Sketch on XY plane
sketch28 = body.newObject("Sketcher::SketchObject", "Sketch027")
sketch28.AttachmentSupport = (doc.getObject("XY_Plane"), [""])
sketch28.MapMode = "FlatFace"
sketch28.AttachmentOffset = App.Placement(App.Vector(0, 0, -35), App.Rotation())
add_polygon(sketch28, [(-10, 33.507), (-10, 26.576), (-14.9999, 25.6944), (-14.9999, 34.3886)])  # lines 0-3
sketch28.addConstraint(Sketcher.Constraint("Vertical", 0))
sketch28.addConstraint(Sketcher.Constraint("Vertical", 2))
sketch28.addConstraint(Sketcher.Constraint("Equal", 1, 3))
sketch28.addConstraint(Sketcher.Constraint("Angle", 3, Q("-9.9998 deg")))
sketch28.addConstraint(Sketcher.Constraint("DistanceX", 0, 2, -1, 1, 10.0))
sketch28.addConstraint(Sketcher.Constraint("DistanceY", 0, 2, 0, 1, 6.931))
sketch28.addConstraint(Sketcher.Constraint("Distance", 1, 5.077))
sketch28.addConstraint(Sketcher.Constraint("DistanceY", -1, 1, 0, 2, 26.576))
pad12 = body.newObject("PartDesign::Pad", "Pad011")
pad12.Profile = sketch28
pad12.Length = 5

doc.recompute()
